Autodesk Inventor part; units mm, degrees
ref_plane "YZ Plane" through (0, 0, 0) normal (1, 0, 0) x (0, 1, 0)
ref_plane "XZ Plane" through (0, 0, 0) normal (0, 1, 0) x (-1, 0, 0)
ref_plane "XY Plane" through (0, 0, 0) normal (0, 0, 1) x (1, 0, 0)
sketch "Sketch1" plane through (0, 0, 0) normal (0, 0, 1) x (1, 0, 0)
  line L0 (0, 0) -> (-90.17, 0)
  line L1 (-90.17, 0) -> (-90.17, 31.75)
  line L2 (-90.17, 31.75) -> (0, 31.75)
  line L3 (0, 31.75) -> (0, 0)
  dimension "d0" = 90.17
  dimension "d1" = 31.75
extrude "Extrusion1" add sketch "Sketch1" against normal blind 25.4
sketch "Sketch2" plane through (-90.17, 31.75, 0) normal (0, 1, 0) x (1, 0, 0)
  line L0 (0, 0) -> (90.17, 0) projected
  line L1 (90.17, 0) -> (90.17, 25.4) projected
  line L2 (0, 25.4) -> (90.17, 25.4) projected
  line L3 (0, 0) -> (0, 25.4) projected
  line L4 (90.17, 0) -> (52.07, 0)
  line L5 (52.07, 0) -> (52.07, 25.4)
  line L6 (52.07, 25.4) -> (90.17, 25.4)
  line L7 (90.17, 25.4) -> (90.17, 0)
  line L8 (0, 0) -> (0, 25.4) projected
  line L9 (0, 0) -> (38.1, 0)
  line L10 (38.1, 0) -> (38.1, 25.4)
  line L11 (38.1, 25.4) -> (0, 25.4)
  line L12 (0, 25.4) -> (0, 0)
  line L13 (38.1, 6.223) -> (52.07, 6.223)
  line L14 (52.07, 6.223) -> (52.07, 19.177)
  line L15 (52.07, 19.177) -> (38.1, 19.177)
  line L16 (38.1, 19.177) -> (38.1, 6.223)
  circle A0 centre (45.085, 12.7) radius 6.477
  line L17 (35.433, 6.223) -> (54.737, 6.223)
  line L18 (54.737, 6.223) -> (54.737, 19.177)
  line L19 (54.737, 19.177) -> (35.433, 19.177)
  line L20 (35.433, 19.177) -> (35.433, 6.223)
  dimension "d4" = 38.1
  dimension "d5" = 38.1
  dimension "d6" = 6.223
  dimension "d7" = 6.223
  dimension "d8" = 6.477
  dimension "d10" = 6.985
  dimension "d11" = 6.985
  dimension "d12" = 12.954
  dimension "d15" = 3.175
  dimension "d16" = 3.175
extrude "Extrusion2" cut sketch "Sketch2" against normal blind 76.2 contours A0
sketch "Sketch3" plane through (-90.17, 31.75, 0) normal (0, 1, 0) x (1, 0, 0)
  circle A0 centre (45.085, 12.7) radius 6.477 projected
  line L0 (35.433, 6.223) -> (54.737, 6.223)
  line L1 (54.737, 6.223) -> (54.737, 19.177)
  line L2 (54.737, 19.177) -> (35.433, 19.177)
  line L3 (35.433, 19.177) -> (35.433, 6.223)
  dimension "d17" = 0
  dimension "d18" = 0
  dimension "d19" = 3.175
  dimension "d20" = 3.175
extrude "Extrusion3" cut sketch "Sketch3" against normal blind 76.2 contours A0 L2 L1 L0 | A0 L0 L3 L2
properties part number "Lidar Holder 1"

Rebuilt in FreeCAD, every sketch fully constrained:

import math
import FreeCAD as App
import Part
import Sketcher
from FreeCAD import Vector
Q = App.Units.Quantity


def add_polygon(sketch, points):
    """Adds a closed chain of lines whose ends are joined by coincident constraints."""
    first, n = sketch.GeometryCount, len(points)
    for a, b in zip(points, points[1:] + points[:1]):
        sketch.addGeometry(Part.LineSegment(App.Vector(*a, 0), App.Vector(*b, 0)), False)
    for i in range(n):
        sketch.addConstraint(Sketcher.Constraint("Coincident", first + i, 2, first + (i + 1) % n, 1))

doc = App.newDocument("Part")
body = doc.addObject("PartDesign::Body", "Body")

sketch1 = doc.addObject("Sketcher::SketchObject", "Sketch")
body.addObject(sketch1)
sketch1.AttachmentSupport = (doc.XY_Plane, [""])
sketch1.MapMode = "FlatFace"
add_polygon(sketch1, [(-90, 0), (0, 0), (0, 32), (-90, 32)])
sketch1.addConstraint(Sketcher.Constraint("Horizontal", 0))
sketch1.addConstraint(Sketcher.Constraint("Vertical", 1))
sketch1.addConstraint(Sketcher.Constraint("Horizontal", 2))
sketch1.addConstraint(Sketcher.Constraint("Vertical", 3))
sketch1.addConstraint(Sketcher.Constraint("Coincident", 0, 2, -1, 1))
sketch1.addConstraint(Sketcher.Constraint("DistanceX", 0, 1, 0, 2, Q("3.55 in")))
sketch1.addConstraint(Sketcher.Constraint("DistanceY", 1, 1, 1, 2, Q("1.25 in")))
pad1 = doc.addObject("PartDesign::Pad", "Pad")
body.addObject(pad1)
pad1.Profile = sketch1
pad1.Length = Q("1 in")
pad1.Reversed = True

sketch2 = doc.addObject("Sketcher::SketchObject", "Sketch001")
body.addObject(sketch2)
sketch2.AttachmentSupport = (doc.XZ_Plane, [""])
sketch2.MapMode = "FlatFace"
sketch2.AttachmentOffset = App.Placement(Vector(0, 0, -1.25 * 25.4), App.Rotation())
sketch2.addGeometry(Part.Circle(Vector(-45, -13, 0), Vector(0, 0, 1), 6), False)
sketch2.addConstraint(Sketcher.Constraint("Diameter", 0, Q("0.51 in")))
sketch2.addConstraint(Sketcher.Constraint("DistanceY", 0, 3, -1, 1, Q("0.5 in")))
sketch2.addConstraint(Sketcher.Constraint("DistanceX", 0, 3, -1, 1, Q("1.775 in")))
pocket1 = doc.addObject("PartDesign::Pocket", "Pocket")
body.addObject(pocket1)
pocket1.Profile = sketch2
pocket1.Length = Q("3 in")
pocket1.Reversed = True

sketch3 = doc.addObject("Sketcher::SketchObject", "Sketch002")
body.addObject(sketch3)
sketch3.AttachmentSupport = (doc.XZ_Plane, [""])
sketch3.MapMode = "FlatFace"
sketch3.AttachmentOffset = App.Placement(Vector(0, 0, -1.25 * 25.4), App.Rotation())
sketch3.addGeometry(Part.ArcOfCircle(Part.Circle(Vector(-45, -13, 0), Vector(0, 0, 1), 6), math.radians(-90), math.radians(90)), False)
sketch3.addGeometry(Part.LineSegment(Vector(-45, -6, 0), Vector(-35, -6, 0)), False)
sketch3.addGeometry(Part.LineSegment(Vector(-35, -6, 0), Vector(-35, -19, 0)), False)
sketch3.addGeometry(Part.LineSegment(Vector(-35, -19, 0), Vector(-45, -19, 0)), False)
sketch3.addGeometry(Part.ArcOfCircle(Part.Circle(Vector(-45, -13, 0), Vector(0, 0, 1), 6), math.radians(90), math.radians(270)), False)
sketch3.addGeometry(Part.LineSegment(Vector(-45, -19, 0), Vector(-55, -19, 0)), False)
sketch3.addGeometry(Part.LineSegment(Vector(-55, -19, 0), Vector(-55, -6, 0)), False)
sketch3.addGeometry(Part.LineSegment(Vector(-55, -6, 0), Vector(-45, -6, 0)), False)
sketch3.addConstraint(Sketcher.Constraint("Tangent", 0, 2, 1, 1))
sketch3.addConstraint(Sketcher.Constraint("Coincident", 1, 2, 2, 1))
sketch3.addConstraint(Sketcher.Constraint("Coincident", 2, 2, 3, 1))
sketch3.addConstraint(Sketcher.Constraint("Tangent", 3, 2, 0, 1))
sketch3.addConstraint(Sketcher.Constraint("Tangent", 4, 2, 5, 1))
sketch3.addConstraint(Sketcher.Constraint("Coincident", 5, 2, 6, 1))
sketch3.addConstraint(Sketcher.Constraint("Coincident", 6, 2, 7, 1))
sketch3.addConstraint(Sketcher.Constraint("Tangent", 7, 2, 4, 1))
sketch3.addConstraint(Sketcher.Constraint("Horizontal", 1))
sketch3.addConstraint(Sketcher.Constraint("Vertical", 2))
sketch3.addConstraint(Sketcher.Constraint("Horizontal", 3))
sketch3.addConstraint(Sketcher.Constraint("Horizontal", 5))
sketch3.addConstraint(Sketcher.Constraint("Vertical", 6))
sketch3.addConstraint(Sketcher.Constraint("Horizontal", 7))
sketch3.addConstraint(Sketcher.Constraint("Coincident", 4, 3, 0, 3))
sketch3.addConstraint(Sketcher.Constraint("Equal", 0, 4))
sketch3.addConstraint(Sketcher.Constraint("Equal", 3, 5))
sketch3.addConstraint(Sketcher.Constraint("Radius", 0, Q("0.255 in")))
sketch3.addConstraint(Sketcher.Constraint("DistanceX", 1, 1, 1, 2, Q("0.38 in")))
sketch3.addConstraint(Sketcher.Constraint("DistanceY", 0, 3, -1, 1, Q("0.5 in")))
sketch3.addConstraint(Sketcher.Constraint("DistanceX", 0, 3, -1, 1, Q("1.775 in")))
pocket2 = doc.addObject("PartDesign::Pocket", "Pocket001")
body.addObject(pocket2)
pocket2.Profile = sketch3
pocket2.Length = Q("3 in")
pocket2.Reversed = True

doc.recompute()
